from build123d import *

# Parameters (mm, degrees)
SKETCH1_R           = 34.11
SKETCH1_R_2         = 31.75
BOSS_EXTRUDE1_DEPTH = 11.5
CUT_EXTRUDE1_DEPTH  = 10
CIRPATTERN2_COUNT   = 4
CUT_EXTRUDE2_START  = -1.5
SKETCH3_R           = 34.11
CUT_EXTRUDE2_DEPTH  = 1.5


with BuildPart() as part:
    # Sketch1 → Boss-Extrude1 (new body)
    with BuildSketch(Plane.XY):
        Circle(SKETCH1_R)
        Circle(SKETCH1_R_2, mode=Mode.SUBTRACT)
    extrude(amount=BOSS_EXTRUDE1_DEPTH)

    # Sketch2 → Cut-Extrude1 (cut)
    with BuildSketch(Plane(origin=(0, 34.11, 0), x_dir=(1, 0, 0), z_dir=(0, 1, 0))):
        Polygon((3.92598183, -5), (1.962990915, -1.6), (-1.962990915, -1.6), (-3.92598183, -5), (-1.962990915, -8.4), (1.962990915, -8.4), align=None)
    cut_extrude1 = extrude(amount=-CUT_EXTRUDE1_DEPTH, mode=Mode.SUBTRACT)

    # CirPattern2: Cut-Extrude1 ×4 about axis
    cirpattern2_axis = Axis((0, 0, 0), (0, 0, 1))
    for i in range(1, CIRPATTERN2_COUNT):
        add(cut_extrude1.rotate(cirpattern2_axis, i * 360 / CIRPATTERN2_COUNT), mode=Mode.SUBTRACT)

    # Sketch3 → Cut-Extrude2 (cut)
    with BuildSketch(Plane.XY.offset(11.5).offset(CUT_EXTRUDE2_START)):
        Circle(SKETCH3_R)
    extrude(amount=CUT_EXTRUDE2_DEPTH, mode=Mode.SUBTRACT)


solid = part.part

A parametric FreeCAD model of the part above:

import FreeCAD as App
import Part
import Sketcher
Q = App.Units.Quantity

doc = App.newDocument("Part")
params = doc.addObject("Spreadsheet::Sheet", "Params")
for row, (alias, value) in enumerate([
    ("sketch1_diameter", "63.5 mm"),
    ("sketch1_diameter2", "68.22 mm"),
    ("pad1_length", "11.5 mm"),
    ("pocket1_length", "10 mm"),
    ("sketch3_diameter", "68.22 mm"),
    ("pocket2_length", "1.5 mm"),
], start=1):
    params.set(f"A{row}", alias)
    params.set(f"B{row}", "=" + value)
    params.setAlias(f"B{row}", alias)

body = doc.addObject("PartDesign::Body", "Body")

# Sketch on XY plane
sketch1 = body.newObject("Sketcher::SketchObject", "Sketch")
sketch1.AttachmentSupport = (doc.getObject("XY_Plane"), [""])
sketch1.MapMode = "FlatFace"
sketch1.addGeometry([
    Part.Circle(App.Vector(0, 0, 0), App.Vector(0, 0, 1), 34.11),
    Part.Circle(App.Vector(0, 0, 0), App.Vector(0, 0, 1), 31.75),
], False)
sketch1.addConstraint([
    Sketcher.Constraint("Coincident", 0, 3, -1, 1),
    Sketcher.Constraint("Coincident", 1, 3, -1, 1),
    Sketcher.Constraint("Diameter", 1, 63.5),
    Sketcher.Constraint("Diameter", 0, 68.22),
])
sketch1.setExpression("Constraints[2]", "Params.sketch1_diameter")
sketch1.setExpression("Constraints[3]", "Params.sketch1_diameter2")
pad1 = body.newObject("PartDesign::Pad", "Pad")
pad1.Profile = sketch1
pad1.setExpression("Length", "Params.pad1_length")

# Sketch on XZ plane
sketch2 = body.newObject("Sketcher::SketchObject", "Sketch001")
sketch2.AttachmentSupport = (doc.getObject("XZ_Plane"), [""])
sketch2.MapMode = "FlatFace"
sketch2.AttachmentOffset = App.Placement(App.Vector(0, 0, -34.11), App.Rotation())
sketch2.addGeometry([
    Part.LineSegment(App.Vector(3.925982, 5, 0), App.Vector(1.962991, 1.6, 0)),  # 0
    Part.LineSegment(App.Vector(1.962991, 1.6, 0), App.Vector(-1.962991, 1.6, 0)),  # 1
    Part.LineSegment(App.Vector(-1.962991, 1.6, 0), App.Vector(-3.925982, 5, 0)),  # 2
    Part.LineSegment(App.Vector(-3.925982, 5, 0), App.Vector(-1.962991, 8.4, 0)),  # 3
    Part.LineSegment(App.Vector(-1.962991, 8.4, 0), App.Vector(1.962991, 8.4, 0)),  # 4
    Part.LineSegment(App.Vector(1.962991, 8.4, 0), App.Vector(3.925982, 5, 0)),  # 5
], False)
sketch2.addConstraint([
    Sketcher.Constraint("Coincident", 0, 2, 1, 1),
    Sketcher.Constraint("Coincident", 1, 2, 2, 1),
    Sketcher.Constraint("Coincident", 2, 2, 3, 1),
    Sketcher.Constraint("Coincident", 3, 2, 4, 1),
    Sketcher.Constraint("Coincident", 4, 2, 5, 1),
    Sketcher.Constraint("Coincident", 5, 2, 0, 1),
    Sketcher.Constraint("Horizontal", 1),
    Sketcher.Constraint("Horizontal", 4),
    Sketcher.Constraint("Symmetric", 2, 2, 5, 2, -2),
    Sketcher.Constraint("Parallel", 0, 3),
    Sketcher.Constraint("Parallel", 2, 5),
    Sketcher.Constraint("Vertical", 1, 2, 3, 2),
    Sketcher.Constraint("Vertical", 0, 2, 4, 2),
    Sketcher.Constraint("Angle", 0, Q("-120 deg")),
    Sketcher.Constraint("DistanceY", -1, 1, 2, 2, 5.0),
    Sketcher.Constraint("DistanceY", -1, 1, 0, 2, 1.6),
    Sketcher.Constraint("DistanceX", 1, 2, 1, 1, 3.925982),
])
pocket1 = body.newObject("PartDesign::Pocket", "Pocket")
pocket1.Profile = sketch2
pocket1.setExpression("Length", "Params.pocket1_length")
pocket1.Reversed = True
doc.recompute()

polarpattern = body.newObject("PartDesign::PolarPattern", "PolarPattern")
polarpattern.Originals = [pocket1]
polarpattern.Axis = (doc.getObject("Z_Axis"), [""])
polarpattern.Angle = 360
polarpattern.Occurrences = 4
body.Tip = polarpattern

# Sketch on XY plane
sketch3 = body.newObject("Sketcher::SketchObject", "Sketch002")
sketch3.AttachmentSupport = (doc.getObject("XY_Plane"), [""])
sketch3.MapMode = "FlatFace"
sketch3.AttachmentOffset = App.Placement(App.Vector(0, 0, 10), App.Rotation())
sketch3.addGeometry(Part.Circle(App.Vector(0, 0, 0), App.Vector(0, 0, 1), 34.11), False)
sketch3.addConstraint([
    Sketcher.Constraint("Coincident", 0, 3, -1, 1),
    Sketcher.Constraint("Diameter", 0, 68.22),
])
sketch3.setExpression("Constraints[1]", "Params.sketch3_diameter")
pocket2 = body.newObject("PartDesign::Pocket", "Pocket001")
pocket2.Profile = sketch3
pocket2.setExpression("Length", "Params.pocket2_length")
pocket2.Reversed = True

doc.recompute()
